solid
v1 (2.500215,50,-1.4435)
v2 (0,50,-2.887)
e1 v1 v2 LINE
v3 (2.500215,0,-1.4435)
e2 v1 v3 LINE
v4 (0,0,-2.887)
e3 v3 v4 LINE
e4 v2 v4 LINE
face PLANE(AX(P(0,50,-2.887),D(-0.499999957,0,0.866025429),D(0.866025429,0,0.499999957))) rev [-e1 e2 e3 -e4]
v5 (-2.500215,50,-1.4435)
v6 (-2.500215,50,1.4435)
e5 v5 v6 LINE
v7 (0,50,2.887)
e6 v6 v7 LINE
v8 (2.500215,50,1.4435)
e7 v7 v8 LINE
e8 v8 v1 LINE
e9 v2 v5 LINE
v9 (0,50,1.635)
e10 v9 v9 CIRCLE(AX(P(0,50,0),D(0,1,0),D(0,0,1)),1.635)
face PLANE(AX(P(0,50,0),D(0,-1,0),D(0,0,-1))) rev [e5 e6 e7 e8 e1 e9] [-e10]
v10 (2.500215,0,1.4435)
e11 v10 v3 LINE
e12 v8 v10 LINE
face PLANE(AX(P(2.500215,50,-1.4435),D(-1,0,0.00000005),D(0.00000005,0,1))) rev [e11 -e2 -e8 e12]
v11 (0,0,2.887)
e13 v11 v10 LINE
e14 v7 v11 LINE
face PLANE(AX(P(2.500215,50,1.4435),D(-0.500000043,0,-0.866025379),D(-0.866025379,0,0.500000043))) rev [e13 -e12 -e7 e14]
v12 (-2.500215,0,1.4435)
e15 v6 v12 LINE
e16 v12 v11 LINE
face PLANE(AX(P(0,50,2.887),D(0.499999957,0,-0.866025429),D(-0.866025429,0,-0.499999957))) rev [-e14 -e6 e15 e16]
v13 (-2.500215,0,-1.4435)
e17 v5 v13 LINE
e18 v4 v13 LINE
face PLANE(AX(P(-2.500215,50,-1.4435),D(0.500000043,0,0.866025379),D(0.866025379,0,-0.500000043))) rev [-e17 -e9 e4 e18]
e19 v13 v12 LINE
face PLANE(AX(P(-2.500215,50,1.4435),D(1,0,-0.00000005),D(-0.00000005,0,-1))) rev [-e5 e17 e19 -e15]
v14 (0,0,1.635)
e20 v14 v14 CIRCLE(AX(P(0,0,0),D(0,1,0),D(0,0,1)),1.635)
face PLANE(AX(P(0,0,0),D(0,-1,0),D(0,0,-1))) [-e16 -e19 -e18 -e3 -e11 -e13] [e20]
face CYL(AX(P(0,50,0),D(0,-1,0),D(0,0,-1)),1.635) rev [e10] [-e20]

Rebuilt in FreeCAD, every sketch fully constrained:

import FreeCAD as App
import Part
import Sketcher
Q = App.Units.Quantity

doc = App.newDocument("Part")
body = doc.addObject("PartDesign::Body", "Body")

sketch1 = body.newObject("Sketcher::SketchObject", "Sketch")
sketch1.AttachmentSupport = (doc.getObject("XZ_Plane"), [""])
sketch1.MapMode = "FlatFace"
sketch1.addGeometry([
    Part.LineSegment(App.Vector(2.500215, 1.4435, 0), App.Vector(2.500215, -1.4435, 0)),
    Part.LineSegment(App.Vector(2.500215, -1.4435, 0), App.Vector(0, -2.887, 0)),
    Part.LineSegment(App.Vector(0, -2.887, 0), App.Vector(-2.500215, -1.4435, 0)),
    Part.LineSegment(App.Vector(-2.500215, -1.4435, 0), App.Vector(-2.500215, 1.4435, 0)),
    Part.LineSegment(App.Vector(-2.500215, 1.4435, 0), App.Vector(0, 2.887, 0)),
    Part.LineSegment(App.Vector(0, 2.887, 0), App.Vector(2.500215, 1.4435, 0)),
    Part.Circle(App.Vector(0, 0, 0), App.Vector(0, 0, 1), 1.635),
], False)
sketch1.addConstraint([
    Sketcher.Constraint("Coincident", 0, 2, 1, 1),
    Sketcher.Constraint("Coincident", 1, 2, 2, 1),
    Sketcher.Constraint("Coincident", 2, 2, 3, 1),
    Sketcher.Constraint("Coincident", 3, 2, 4, 1),
    Sketcher.Constraint("Coincident", 4, 2, 5, 1),
    Sketcher.Constraint("Coincident", 5, 2, 0, 1),
    Sketcher.Constraint("Vertical", 0),
    Sketcher.Constraint("Vertical", 3),
    Sketcher.Constraint("Coincident", 6, 3, -1, 1),
    Sketcher.Constraint("Symmetric", 0, 2, 3, 2, -1, 1),
    Sketcher.Constraint("Symmetric", 1, 2, 4, 2, -1, 1),
    Sketcher.Constraint("PointOnObject", 1, 2, -2),
    Sketcher.Constraint("Parallel", 2, 5),
    Sketcher.Constraint("Horizontal", 0, 2, 2, 2),
    Sketcher.Constraint("Diameter", 6, Q("3.27 mm")),
    Sketcher.Constraint("Angle", 1, Q("-150.000003 deg")),
    Sketcher.Constraint("DistanceY", 0, 2, 0, 1, Q("2.887 mm")),
    Sketcher.Constraint("Distance", 1, Q("2.887 mm")),
])
pad1 = body.newObject("PartDesign::Pad", "Pad")
pad1.Profile = sketch1
pad1.Length = 50
pad1.Reversed = True

doc.recompute()
